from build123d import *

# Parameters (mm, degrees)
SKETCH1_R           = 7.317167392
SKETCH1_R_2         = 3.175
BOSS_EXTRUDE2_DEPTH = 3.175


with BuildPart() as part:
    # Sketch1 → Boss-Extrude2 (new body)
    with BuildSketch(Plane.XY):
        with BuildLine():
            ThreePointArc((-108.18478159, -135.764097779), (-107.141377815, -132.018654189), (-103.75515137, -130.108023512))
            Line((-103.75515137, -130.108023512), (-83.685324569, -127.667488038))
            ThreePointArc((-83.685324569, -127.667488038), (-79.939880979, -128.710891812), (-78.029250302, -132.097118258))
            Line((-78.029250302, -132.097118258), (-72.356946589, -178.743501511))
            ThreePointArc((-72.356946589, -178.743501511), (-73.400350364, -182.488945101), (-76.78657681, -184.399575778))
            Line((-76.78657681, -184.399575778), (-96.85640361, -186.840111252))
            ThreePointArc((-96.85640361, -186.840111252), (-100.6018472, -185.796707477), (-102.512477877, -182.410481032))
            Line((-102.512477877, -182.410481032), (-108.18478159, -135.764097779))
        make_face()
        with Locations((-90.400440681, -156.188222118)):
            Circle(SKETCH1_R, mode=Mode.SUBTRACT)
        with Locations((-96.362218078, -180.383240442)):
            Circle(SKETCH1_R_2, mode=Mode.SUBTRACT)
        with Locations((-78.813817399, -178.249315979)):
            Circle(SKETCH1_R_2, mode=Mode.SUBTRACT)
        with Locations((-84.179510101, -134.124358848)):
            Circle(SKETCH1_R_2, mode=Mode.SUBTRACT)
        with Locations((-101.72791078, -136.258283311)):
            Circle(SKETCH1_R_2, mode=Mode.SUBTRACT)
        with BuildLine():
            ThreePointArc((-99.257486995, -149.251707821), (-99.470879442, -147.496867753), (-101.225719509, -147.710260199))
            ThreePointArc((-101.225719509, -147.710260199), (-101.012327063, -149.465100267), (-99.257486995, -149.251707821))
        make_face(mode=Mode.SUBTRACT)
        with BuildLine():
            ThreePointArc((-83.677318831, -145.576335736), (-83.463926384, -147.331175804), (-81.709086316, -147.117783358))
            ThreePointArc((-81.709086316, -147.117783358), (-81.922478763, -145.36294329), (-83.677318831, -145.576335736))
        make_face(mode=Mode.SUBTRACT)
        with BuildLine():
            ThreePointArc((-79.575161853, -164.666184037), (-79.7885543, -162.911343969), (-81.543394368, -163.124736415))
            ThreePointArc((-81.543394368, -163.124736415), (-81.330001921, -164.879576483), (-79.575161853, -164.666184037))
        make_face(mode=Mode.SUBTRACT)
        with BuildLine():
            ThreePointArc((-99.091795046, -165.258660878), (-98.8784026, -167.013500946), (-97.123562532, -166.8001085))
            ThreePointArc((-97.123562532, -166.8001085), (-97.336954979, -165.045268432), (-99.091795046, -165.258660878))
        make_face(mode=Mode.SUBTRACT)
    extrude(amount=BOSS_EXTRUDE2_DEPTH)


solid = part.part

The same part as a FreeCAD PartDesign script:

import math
import FreeCAD as App
import Part
import Sketcher
from FreeCAD import Vector
Q = App.Units.Quantity

doc = App.newDocument("Part")
body = doc.addObject("PartDesign::Body", "Body")

# Sketch on XY plane
sketch1 = body.newObject("Sketcher::SketchObject", "Sketch")
sketch1.AttachmentSupport = (doc.getObject("XY_Plane"), [""])
sketch1.MapMode = "FlatFace"
sketch1.addGeometry([
    Part.ArcOfCircle(Part.Circle(Vector(-103.141929, -135.150876, 0), Vector(0, 0, 1), 5.08), math.radians(96.933253), math.radians(186.933253)),  # 0
    Part.LineSegment(Vector(-108.184782, -135.764098, 0), Vector(-102.512478, -182.410481, 0)),  # 1
    Part.ArcOfCircle(Part.Circle(Vector(-97.469626, -181.797259, 0), Vector(0, 0, 1), 5.08), math.radians(-173.066747), math.radians(-83.066747)),  # 2
    Part.LineSegment(Vector(-96.856404, -186.840111, 0), Vector(-76.786577, -184.399576, 0)),  # 3
    Part.ArcOfCircle(Part.Circle(Vector(-77.399799, -179.356724, 0), Vector(0, 0, 1), 5.08), math.radians(-83.066747), math.radians(6.933253)),  # 4
    Part.LineSegment(Vector(-72.356947, -178.743502, 0), Vector(-78.02925, -132.097118, 0)),  # 5
    Part.ArcOfCircle(Part.Circle(Vector(-83.072103, -132.71034, 0), Vector(0, 0, 1), 5.08), math.radians(6.933253), math.radians(96.933253)),  # 6
    Part.LineSegment(Vector(-83.685325, -127.667488, 0), Vector(-103.755151, -130.108024, 0)),  # 7
    Part.Circle(Vector(-78.813817, -178.249316, 0), Vector(0, 0, 1), 3.175),  # 8
    Part.ArcOfCircle(Part.Circle(Vector(-80.559278, -163.89546, 0), Vector(0, 0, 1), 1.25), math.radians(141.933253), math.radians(321.933253)),  # 9
    Part.ArcOfCircle(Part.Circle(Vector(-80.559278, -163.89546, 0), Vector(0, 0, 1), 1.25), math.radians(-38.066747), math.radians(141.933253)),  # 10
    Part.Circle(Vector(-96.362218, -180.38324, 0), Vector(0, 0, 1), 3.175),  # 11
    Part.ArcOfCircle(Part.Circle(Vector(-98.107679, -166.029385, 0), Vector(0, 0, 1), 1.25), math.radians(-38.066747), math.radians(141.933253)),  # 12
    Part.ArcOfCircle(Part.Circle(Vector(-98.107679, -166.029385, 0), Vector(0, 0, 1), 1.25), math.radians(141.933253), math.radians(321.933253)),  # 13
    Part.ArcOfCircle(Part.Circle(Vector(-82.693203, -146.34706, 0), Vector(0, 0, 1), 1.25), math.radians(-38.066747), math.radians(141.933253)),  # 14
    Part.ArcOfCircle(Part.Circle(Vector(-82.693203, -146.34706, 0), Vector(0, 0, 1), 1.25), math.radians(141.933253), math.radians(321.933253)),  # 15
    Part.Circle(Vector(-84.17951, -134.124359, 0), Vector(0, 0, 1), 3.175),  # 16
    Part.Circle(Vector(-90.400441, -156.188222, 0), Vector(0, 0, 1), 7.317167),  # 17
    Part.ArcOfCircle(Part.Circle(Vector(-100.241603, -148.480984, 0), Vector(0, 0, 1), 1.25), math.radians(141.933253), math.radians(321.933253)),  # 18
    Part.ArcOfCircle(Part.Circle(Vector(-100.241603, -148.480984, 0), Vector(0, 0, 1), 1.25), math.radians(-38.066747), math.radians(141.933253)),  # 19
    Part.Circle(Vector(-101.727911, -136.258283, 0), Vector(0, 0, 1), 3.175),  # 20
], False)
sketch1.addConstraint([
    Sketcher.Constraint("Tangent", 0, 2, 1, 1),
    Sketcher.Constraint("Tangent", 1, 2, 2, 1),
    Sketcher.Constraint("Tangent", 2, 2, 3, 1),
    Sketcher.Constraint("Tangent", 3, 2, 4, 1),
    Sketcher.Constraint("Tangent", 4, 2, 5, 1),
    Sketcher.Constraint("Tangent", 5, 2, 6, 1),
    Sketcher.Constraint("Tangent", 6, 2, 7, 1),
    Sketcher.Constraint("Tangent", 7, 2, 0, 1),
    Sketcher.Constraint("Tangent", 9, 1, 10, 2),
    Sketcher.Constraint("Coincident", 10, 1, 9, 2),
    Sketcher.Constraint("Tangent", 12, 1, 13, 2),
    Sketcher.Constraint("Coincident", 13, 1, 12, 2),
    Sketcher.Constraint("Tangent", 14, 1, 15, 2),
    Sketcher.Constraint("Coincident", 15, 1, 14, 2),
    Sketcher.Constraint("Tangent", 18, 1, 19, 2),
    Sketcher.Constraint("Coincident", 19, 1, 18, 2),
    Sketcher.Constraint("Equal", 0, 2),
    Sketcher.Constraint("Equal", 2, 4),
    Sketcher.Constraint("Equal", 4, 6),
    Sketcher.Constraint("Equal", 8, 11),
    Sketcher.Constraint("Equal", 10, 12),
    Sketcher.Constraint("Equal", 13, 14),
    Sketcher.Constraint("Equal", 11, 16),
    Sketcher.Constraint("Equal", 15, 18),
    Sketcher.Constraint("Equal", 16, 20),
    Sketcher.Constraint("Perpendicular", 1, 3),
    Sketcher.Constraint("Perpendicular", 3, 5),
    Sketcher.Constraint("Perpendicular", 5, 7),
    Sketcher.Constraint("Radius", 0, Q("0.2 in")),
    Sketcher.Constraint("Diameter", 8, Q("0.25 in")),
    Sketcher.Constraint("Distance", 1, Q("1.85 in")),
    Sketcher.Constraint("Radius", 9, Q("1.25 mm")),
    Sketcher.Constraint("Diameter", 17, Q("14.634335 mm")),
    Sketcher.Constraint("DistanceX", 4, 3, -1, 1, Q("77.399799 mm")),
    Sketcher.Constraint("DistanceY", 4, 2, -1, 1, Q("178.743502 mm")),
    Sketcher.Constraint("DistanceY", 2, 3, 9, 3, Q("17.901799 mm")),
    Sketcher.Constraint("DistanceX", 11, 3, 8, 3, Q("17.548401 mm")),
    Sketcher.Constraint("DistanceX", 12, 3, 10, 3, Q("17.548401 mm")),
    Sketcher.Constraint("DistanceX", 6, 3, 14, 3, Q("0.3789 mm")),
    Sketcher.Constraint("DistanceY", 9, 3, 14, 3, Q("17.548401 mm")),
    Sketcher.Constraint("DistanceY", 15, 3, 16, 3, Q("12.222701 mm")),
    Sketcher.Constraint("DistanceX", 18, 3, 14, 3, Q("17.548401 mm")),
    Sketcher.Constraint("DistanceY", 12, 3, 18, 3, Q("17.548401 mm")),
    Sketcher.Constraint("DistanceY", 18, 3, 20, 3, Q("12.222701 mm")),
    Sketcher.Constraint("DistanceX", 20, 3, 16, 3, Q("17.548401 mm")),
    Sketcher.Constraint("DistanceX", 1, 2, 12, 3, Q("4.404799 mm")),
    Sketcher.Constraint("Distance", 3, Q("20.21767 mm")),
    Sketcher.Constraint("DistanceX", 0, 3, -1, 1, Q("103.141929 mm")),
    Sketcher.Constraint("DistanceX", 11, 3, -1, 1, Q("96.362218 mm")),
    Sketcher.Constraint("DistanceY", 11, 3, -1, 1, Q("180.38324 mm")),
    Sketcher.Constraint("DistanceX", 16, 3, -1, 1, Q("84.17951 mm")),
    Sketcher.Constraint("DistanceX", 17, 3, -1, 1, Q("90.400441 mm")),
    Sketcher.Constraint("DistanceX", 10, 1, -1, 1, Q("79.575162 mm")),
    Sketcher.Constraint("DistanceY", 12, 1, -1, 1, Q("166.800108 mm")),
    Sketcher.Constraint("DistanceY", 13, 1, -1, 1, Q("165.258661 mm")),
    Sketcher.Constraint("DistanceX", 15, 1, -1, 1, Q("83.677319 mm")),
    Sketcher.Constraint("DistanceX", 18, 1, -1, 1, Q("101.22572 mm")),
    Sketcher.Constraint("DistanceY", 18, 1, -1, 1, Q("147.71026 mm")),
    Sketcher.Constraint("DistanceY", 8, 3, 0, 3, Q("43.09844 mm")),
    Sketcher.Constraint("DistanceY", 9, 3, 17, 3, Q("7.707238 mm")),
    Sketcher.Constraint("DistanceY", 8, 3, 9, 1, Q("15.12458 mm")),
    Sketcher.Constraint("DistanceY", 17, 3, 14, 1, Q("9.070439 mm")),
    Sketcher.Constraint("DistanceX", 19, 1, -1, 1, Q("99.257487 mm")),
])
pad1 = body.newObject("PartDesign::Pad", "Pad")
pad1.Profile = sketch1
pad1.Length = Q("0.125 in")

doc.recompute()
